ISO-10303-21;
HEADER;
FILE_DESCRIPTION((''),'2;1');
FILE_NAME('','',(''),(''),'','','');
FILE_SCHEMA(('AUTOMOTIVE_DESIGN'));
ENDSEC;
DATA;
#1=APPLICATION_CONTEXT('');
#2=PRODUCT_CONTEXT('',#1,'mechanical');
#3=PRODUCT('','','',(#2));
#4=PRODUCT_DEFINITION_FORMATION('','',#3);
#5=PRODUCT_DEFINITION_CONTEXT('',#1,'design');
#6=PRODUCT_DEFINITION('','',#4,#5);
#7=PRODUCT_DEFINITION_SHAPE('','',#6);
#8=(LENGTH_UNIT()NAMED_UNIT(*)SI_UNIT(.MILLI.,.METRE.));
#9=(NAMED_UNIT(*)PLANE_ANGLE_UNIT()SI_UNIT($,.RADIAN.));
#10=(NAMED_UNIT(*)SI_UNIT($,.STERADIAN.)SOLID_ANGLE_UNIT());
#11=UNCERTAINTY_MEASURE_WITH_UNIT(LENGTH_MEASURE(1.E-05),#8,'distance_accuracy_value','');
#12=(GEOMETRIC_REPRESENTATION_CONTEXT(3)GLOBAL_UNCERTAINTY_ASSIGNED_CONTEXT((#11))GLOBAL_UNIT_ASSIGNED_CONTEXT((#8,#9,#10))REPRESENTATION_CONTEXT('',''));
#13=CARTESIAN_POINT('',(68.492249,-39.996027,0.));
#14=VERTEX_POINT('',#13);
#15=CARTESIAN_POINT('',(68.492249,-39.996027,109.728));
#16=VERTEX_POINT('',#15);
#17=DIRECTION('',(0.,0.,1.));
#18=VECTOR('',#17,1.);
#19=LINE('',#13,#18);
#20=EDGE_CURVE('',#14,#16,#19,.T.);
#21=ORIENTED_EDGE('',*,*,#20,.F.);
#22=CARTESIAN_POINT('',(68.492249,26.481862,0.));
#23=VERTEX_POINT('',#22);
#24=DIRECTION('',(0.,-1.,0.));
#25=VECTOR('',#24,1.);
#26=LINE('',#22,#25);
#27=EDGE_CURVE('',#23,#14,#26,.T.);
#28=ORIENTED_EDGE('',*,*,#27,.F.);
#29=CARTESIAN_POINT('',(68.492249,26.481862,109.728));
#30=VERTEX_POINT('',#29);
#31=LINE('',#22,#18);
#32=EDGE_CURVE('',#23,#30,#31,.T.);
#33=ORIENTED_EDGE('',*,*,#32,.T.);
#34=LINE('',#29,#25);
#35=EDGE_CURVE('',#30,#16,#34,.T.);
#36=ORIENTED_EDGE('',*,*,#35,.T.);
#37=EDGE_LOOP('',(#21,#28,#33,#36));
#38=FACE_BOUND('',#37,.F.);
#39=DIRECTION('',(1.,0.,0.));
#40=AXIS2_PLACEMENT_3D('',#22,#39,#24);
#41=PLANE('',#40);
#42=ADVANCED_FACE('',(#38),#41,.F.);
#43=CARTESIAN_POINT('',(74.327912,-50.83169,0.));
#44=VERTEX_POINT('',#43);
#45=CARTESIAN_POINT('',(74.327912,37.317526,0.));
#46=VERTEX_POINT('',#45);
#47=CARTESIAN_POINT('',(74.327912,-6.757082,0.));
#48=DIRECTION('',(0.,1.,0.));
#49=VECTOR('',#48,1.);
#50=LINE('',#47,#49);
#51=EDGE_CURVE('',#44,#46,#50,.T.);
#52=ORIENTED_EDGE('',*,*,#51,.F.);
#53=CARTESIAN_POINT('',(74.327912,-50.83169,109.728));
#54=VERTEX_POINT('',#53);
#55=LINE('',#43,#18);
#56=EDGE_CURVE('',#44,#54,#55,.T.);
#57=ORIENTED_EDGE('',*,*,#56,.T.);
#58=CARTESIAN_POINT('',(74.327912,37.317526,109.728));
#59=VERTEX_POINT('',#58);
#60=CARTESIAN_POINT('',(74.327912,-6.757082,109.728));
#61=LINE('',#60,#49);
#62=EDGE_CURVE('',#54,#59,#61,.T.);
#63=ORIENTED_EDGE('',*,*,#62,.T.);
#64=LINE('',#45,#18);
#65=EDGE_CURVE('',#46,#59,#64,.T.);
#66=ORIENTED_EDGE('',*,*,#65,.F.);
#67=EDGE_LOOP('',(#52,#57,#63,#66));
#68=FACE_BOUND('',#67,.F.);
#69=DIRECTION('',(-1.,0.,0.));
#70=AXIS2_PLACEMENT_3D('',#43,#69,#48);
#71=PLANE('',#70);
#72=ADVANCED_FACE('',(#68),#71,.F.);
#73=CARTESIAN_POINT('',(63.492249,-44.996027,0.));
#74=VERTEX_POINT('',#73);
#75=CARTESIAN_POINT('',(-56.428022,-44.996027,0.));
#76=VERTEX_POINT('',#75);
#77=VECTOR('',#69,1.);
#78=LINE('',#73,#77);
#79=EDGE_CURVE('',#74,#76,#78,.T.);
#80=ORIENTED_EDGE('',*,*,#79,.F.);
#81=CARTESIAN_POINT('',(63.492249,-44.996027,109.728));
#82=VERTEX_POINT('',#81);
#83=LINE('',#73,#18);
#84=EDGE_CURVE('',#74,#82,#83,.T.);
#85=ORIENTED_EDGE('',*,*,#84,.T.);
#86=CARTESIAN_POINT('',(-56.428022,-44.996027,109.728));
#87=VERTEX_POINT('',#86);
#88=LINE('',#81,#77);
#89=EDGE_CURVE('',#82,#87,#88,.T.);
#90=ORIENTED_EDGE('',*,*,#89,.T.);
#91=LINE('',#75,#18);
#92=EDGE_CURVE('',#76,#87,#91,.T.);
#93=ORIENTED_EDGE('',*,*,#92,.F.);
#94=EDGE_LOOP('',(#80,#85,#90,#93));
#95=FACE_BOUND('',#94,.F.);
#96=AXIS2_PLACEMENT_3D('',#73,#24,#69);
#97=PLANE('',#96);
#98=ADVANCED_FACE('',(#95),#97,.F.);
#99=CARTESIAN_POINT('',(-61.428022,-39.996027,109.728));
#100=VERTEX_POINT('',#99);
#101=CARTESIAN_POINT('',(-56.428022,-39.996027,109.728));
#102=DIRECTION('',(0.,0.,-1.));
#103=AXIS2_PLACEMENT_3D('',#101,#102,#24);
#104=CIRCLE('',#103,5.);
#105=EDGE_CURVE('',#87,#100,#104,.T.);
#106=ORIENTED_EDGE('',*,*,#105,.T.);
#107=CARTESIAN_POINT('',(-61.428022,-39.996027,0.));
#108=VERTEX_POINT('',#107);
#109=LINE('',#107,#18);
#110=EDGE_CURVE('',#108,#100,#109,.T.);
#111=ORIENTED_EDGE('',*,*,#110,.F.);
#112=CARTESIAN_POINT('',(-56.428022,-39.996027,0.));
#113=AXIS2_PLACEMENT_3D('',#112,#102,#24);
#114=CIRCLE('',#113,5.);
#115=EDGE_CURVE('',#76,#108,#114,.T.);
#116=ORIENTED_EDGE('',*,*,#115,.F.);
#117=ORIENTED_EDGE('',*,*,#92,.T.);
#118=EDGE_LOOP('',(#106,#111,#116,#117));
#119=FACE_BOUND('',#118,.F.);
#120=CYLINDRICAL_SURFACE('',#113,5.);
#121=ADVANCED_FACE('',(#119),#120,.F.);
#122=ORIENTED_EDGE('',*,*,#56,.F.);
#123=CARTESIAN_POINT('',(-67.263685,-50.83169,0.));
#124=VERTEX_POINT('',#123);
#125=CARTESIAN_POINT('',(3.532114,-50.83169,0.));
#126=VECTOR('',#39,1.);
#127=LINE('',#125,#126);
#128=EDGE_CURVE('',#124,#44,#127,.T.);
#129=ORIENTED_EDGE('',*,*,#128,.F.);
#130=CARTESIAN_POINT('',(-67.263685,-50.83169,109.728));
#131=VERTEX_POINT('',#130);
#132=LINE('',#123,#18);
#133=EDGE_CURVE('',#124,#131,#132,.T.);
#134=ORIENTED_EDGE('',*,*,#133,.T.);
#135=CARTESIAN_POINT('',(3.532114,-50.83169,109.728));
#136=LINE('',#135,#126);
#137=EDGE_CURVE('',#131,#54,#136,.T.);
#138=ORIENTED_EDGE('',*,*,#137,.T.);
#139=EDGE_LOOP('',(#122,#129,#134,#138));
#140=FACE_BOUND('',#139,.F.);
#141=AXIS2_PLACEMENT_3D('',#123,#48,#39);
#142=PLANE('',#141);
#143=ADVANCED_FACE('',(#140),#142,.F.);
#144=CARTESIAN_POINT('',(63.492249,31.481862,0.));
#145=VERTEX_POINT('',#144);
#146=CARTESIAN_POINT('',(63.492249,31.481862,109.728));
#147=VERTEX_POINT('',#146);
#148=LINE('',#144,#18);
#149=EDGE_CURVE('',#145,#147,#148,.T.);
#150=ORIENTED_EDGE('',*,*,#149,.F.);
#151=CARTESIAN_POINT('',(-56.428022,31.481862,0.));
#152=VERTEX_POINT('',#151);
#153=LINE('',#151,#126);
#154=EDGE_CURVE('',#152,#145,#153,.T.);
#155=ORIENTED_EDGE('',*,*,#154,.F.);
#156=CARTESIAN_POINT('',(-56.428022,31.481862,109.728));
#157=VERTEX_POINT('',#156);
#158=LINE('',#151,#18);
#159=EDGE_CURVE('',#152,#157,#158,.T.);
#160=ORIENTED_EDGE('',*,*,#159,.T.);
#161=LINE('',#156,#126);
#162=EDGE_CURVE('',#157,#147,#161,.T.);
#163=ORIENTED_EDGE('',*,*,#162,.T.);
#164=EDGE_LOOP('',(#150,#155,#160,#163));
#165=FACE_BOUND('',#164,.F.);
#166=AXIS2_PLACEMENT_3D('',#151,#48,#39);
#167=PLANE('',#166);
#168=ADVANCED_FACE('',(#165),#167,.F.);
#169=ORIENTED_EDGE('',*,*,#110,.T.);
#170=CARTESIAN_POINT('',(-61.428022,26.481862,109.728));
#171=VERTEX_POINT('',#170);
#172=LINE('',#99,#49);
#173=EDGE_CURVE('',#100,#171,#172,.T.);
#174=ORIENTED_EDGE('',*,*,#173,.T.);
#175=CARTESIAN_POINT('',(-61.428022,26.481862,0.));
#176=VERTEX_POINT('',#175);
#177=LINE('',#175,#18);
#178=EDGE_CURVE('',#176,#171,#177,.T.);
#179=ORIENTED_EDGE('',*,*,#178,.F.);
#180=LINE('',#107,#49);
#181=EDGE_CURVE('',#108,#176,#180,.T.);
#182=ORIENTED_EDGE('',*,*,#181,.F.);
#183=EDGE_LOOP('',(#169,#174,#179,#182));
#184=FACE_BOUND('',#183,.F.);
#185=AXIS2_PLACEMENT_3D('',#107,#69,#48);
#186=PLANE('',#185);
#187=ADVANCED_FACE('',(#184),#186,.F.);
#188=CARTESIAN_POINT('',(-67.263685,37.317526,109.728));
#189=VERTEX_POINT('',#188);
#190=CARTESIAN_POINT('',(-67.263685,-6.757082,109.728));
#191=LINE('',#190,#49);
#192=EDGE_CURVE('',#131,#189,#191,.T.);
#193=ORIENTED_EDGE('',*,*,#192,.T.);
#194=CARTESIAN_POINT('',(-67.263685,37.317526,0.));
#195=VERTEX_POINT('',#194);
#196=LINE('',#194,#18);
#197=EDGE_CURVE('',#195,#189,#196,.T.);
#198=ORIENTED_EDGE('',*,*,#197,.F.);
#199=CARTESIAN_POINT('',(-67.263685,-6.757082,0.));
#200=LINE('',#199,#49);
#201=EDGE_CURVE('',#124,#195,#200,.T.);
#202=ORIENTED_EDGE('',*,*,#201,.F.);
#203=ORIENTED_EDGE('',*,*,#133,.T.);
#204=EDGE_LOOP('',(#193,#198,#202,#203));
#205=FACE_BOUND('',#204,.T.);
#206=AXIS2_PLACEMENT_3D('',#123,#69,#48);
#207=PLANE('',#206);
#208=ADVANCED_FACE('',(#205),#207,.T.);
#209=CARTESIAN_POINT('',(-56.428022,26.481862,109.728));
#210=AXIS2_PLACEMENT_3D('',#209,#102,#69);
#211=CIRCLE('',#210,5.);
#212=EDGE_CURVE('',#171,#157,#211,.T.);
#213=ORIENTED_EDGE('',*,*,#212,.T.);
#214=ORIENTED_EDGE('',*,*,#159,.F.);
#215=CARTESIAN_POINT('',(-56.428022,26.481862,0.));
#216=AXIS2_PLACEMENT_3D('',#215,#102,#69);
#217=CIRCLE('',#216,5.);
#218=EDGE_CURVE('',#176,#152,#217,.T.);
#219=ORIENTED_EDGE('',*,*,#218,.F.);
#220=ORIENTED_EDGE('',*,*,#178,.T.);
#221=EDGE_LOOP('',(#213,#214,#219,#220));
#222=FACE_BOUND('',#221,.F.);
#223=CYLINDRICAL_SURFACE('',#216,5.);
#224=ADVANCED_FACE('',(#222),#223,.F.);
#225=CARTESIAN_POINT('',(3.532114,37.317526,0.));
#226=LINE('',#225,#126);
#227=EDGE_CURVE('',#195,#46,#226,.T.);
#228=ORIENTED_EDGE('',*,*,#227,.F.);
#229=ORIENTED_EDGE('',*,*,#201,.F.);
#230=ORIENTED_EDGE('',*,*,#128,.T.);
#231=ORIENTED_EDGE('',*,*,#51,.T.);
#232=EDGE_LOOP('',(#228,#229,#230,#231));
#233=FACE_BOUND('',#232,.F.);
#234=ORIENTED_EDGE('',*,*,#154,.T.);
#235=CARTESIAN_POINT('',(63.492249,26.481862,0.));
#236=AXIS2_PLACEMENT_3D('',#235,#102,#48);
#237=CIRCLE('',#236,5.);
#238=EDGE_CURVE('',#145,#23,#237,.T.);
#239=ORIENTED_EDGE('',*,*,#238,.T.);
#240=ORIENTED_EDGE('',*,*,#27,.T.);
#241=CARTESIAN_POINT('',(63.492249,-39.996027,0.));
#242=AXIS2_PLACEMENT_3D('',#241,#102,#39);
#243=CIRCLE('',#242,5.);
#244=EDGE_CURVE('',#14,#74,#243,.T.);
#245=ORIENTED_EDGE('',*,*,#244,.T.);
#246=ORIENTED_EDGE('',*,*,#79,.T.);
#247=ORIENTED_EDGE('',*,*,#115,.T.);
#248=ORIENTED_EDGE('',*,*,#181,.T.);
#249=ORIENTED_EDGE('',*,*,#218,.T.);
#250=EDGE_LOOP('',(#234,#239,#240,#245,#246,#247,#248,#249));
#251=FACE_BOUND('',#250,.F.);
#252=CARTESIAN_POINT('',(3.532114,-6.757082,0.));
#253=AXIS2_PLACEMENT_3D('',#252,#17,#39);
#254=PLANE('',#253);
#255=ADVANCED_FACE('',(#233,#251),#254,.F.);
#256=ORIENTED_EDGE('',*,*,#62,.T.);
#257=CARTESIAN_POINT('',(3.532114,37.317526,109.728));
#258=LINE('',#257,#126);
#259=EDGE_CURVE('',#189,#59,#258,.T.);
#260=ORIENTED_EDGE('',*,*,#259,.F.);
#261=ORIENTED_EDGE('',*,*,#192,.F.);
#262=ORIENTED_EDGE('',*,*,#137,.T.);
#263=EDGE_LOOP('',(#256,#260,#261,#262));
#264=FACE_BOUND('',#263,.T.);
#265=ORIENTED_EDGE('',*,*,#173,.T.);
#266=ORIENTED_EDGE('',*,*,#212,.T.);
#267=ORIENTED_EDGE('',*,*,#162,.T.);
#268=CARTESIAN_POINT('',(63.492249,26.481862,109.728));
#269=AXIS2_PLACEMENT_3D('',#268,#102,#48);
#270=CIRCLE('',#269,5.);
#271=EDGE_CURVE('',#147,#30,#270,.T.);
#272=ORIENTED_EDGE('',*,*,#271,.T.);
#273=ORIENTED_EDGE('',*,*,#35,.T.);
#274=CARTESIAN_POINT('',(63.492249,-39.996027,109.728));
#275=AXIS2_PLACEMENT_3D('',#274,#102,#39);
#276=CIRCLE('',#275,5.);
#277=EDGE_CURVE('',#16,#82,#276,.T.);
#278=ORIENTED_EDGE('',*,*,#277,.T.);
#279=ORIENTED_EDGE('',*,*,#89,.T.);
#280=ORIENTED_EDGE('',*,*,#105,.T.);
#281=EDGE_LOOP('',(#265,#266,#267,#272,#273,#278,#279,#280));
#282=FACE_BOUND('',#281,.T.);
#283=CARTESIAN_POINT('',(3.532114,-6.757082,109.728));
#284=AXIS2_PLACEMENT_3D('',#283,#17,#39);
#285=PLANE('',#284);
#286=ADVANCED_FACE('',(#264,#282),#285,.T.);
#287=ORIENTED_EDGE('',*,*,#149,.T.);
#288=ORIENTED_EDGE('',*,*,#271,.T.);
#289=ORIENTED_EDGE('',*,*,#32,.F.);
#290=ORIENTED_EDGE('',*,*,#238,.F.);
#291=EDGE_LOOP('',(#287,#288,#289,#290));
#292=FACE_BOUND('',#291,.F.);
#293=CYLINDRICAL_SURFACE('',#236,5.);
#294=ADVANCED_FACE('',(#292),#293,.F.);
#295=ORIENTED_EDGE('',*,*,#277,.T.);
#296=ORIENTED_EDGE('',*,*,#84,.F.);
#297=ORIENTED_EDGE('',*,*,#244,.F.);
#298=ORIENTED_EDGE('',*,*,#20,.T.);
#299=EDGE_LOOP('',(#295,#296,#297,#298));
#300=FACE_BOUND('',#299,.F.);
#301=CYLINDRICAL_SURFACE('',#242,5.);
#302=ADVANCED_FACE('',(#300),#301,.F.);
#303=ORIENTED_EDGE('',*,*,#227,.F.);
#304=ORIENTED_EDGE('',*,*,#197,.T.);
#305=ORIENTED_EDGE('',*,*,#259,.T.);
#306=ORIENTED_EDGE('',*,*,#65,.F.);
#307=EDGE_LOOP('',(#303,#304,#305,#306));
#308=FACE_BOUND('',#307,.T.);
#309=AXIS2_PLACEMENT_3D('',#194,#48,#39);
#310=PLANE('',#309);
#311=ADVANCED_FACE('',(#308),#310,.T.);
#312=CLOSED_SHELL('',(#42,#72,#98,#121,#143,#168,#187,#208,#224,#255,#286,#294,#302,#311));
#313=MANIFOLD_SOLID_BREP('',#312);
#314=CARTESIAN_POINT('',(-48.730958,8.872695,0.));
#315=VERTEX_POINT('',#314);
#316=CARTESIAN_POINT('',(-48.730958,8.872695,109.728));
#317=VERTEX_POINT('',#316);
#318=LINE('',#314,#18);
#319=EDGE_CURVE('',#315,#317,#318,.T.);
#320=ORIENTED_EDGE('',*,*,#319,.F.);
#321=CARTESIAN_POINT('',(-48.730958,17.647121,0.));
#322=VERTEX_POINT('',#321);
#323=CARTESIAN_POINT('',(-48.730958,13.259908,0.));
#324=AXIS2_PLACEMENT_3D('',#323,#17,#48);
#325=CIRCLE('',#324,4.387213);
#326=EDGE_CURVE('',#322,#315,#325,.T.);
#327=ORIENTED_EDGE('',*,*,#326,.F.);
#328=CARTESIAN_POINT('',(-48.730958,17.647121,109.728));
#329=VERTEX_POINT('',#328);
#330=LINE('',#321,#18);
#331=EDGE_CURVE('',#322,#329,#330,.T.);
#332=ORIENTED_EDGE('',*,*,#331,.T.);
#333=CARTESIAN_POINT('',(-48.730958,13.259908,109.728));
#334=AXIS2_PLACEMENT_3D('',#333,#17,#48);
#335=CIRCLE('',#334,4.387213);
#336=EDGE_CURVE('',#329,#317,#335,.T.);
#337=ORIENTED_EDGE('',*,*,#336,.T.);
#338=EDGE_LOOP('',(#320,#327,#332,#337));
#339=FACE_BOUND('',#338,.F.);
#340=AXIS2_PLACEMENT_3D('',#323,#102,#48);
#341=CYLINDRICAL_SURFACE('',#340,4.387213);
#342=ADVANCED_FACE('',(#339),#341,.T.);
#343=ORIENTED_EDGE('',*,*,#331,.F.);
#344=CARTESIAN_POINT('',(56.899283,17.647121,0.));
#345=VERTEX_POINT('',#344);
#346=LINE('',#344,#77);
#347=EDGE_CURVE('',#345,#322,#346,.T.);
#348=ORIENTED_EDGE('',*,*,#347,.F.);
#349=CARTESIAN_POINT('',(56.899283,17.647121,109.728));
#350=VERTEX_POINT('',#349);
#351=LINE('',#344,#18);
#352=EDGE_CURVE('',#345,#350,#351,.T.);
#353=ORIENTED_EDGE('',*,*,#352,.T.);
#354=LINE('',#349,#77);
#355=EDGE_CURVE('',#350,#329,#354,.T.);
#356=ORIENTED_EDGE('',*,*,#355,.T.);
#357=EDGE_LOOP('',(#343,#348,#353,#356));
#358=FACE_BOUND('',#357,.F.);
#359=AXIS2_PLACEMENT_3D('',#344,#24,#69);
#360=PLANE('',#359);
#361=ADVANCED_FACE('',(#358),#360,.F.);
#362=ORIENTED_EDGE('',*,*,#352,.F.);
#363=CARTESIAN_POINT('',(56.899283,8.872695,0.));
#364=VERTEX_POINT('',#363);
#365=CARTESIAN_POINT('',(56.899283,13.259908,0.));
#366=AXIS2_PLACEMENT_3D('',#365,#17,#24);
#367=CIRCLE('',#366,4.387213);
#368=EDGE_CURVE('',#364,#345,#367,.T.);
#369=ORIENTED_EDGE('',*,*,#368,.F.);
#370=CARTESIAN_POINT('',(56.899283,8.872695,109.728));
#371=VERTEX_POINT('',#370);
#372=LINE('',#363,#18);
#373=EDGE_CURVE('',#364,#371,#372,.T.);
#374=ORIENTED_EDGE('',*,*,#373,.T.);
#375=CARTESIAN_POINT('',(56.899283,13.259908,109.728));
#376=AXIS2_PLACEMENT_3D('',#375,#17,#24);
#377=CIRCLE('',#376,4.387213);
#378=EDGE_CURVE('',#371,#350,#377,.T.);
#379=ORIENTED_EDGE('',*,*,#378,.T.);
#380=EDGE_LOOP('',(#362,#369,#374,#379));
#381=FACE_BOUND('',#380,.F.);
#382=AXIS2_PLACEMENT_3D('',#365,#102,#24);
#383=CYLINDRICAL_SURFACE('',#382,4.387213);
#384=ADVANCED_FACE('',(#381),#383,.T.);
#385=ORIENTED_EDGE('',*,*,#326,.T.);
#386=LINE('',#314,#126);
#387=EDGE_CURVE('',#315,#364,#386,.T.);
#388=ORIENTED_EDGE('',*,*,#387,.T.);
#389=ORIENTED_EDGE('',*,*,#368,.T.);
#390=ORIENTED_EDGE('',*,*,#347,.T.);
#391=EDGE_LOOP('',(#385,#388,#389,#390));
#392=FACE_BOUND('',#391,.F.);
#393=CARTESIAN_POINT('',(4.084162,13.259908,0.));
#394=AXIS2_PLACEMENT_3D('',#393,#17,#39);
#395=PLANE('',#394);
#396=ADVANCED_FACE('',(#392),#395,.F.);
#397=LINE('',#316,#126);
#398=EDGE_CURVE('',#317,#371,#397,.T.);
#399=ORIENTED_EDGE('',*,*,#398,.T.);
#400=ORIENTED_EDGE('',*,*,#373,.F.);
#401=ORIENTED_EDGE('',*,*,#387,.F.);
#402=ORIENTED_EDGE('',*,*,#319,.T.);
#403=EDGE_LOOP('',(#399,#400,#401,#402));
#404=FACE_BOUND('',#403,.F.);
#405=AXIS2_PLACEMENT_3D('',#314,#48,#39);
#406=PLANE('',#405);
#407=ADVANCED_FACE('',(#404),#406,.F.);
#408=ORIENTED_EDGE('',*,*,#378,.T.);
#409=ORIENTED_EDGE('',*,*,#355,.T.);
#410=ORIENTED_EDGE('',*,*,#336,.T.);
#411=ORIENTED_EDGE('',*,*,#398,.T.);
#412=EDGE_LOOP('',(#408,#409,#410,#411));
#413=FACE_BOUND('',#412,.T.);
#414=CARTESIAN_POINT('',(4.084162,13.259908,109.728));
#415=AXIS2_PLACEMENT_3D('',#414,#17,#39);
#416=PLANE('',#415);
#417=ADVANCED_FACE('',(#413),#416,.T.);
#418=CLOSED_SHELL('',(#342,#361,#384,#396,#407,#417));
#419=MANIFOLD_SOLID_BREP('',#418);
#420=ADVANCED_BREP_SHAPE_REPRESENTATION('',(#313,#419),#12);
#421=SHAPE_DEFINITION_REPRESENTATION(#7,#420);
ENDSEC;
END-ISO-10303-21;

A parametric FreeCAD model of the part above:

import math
import FreeCAD as App
import Part
import Sketcher
from FreeCAD import Vector


def add_polygon(sketch, points):
    """Adds a closed chain of lines whose ends are joined by coincident constraints."""
    first, n = sketch.GeometryCount, len(points)
    for a, b in zip(points, points[1:] + points[:1]):
        sketch.addGeometry(Part.LineSegment(App.Vector(*a, 0), App.Vector(*b, 0)), False)
    for i in range(n):
        sketch.addConstraint(Sketcher.Constraint("Coincident", first + i, 2, first + (i + 1) % n, 1))

doc = App.newDocument("Part")
body = doc.addObject("PartDesign::Body", "Body")

sketch1 = body.newObject("Sketcher::SketchObject", "Sketch")
sketch1.AttachmentSupport = (doc.getObject("XY_Plane"), [""])
sketch1.MapMode = "FlatFace"
sketch1.addGeometry(Part.LineSegment(Vector(56.9, 17.6, 0), Vector(-48.7, 17.6, 0)), False)
sketch1.addGeometry(Part.ArcOfCircle(Part.Circle(Vector(-48.7, 13.3, 0), Vector(0, 0, 1), 4.4), math.radians(90), math.radians(270)), False)
sketch1.addGeometry(Part.LineSegment(Vector(-48.7, 8.9, 0), Vector(56.9, 8.9, 0)), False)
sketch1.addGeometry(Part.ArcOfCircle(Part.Circle(Vector(56.9, 13.3, 0), Vector(0, 0, 1), 4.4), math.radians(-90), math.radians(90)), False)
sketch1.addConstraint(Sketcher.Constraint("Tangent", 0, 2, 1, 1))
sketch1.addConstraint(Sketcher.Constraint("Tangent", 1, 2, 2, 1))
sketch1.addConstraint(Sketcher.Constraint("Tangent", 2, 2, 3, 1))
sketch1.addConstraint(Sketcher.Constraint("Tangent", 3, 2, 0, 1))
sketch1.addConstraint(Sketcher.Constraint("Horizontal", 0))
sketch1.addConstraint(Sketcher.Constraint("Horizontal", 2))
sketch1.addConstraint(Sketcher.Constraint("Radius", 1, 4.387213))
sketch1.addConstraint(Sketcher.Constraint("DistanceX", 0, 2, 0, 1, 105.630241))
sketch1.addConstraint(Sketcher.Constraint("DistanceX", 1, 3, -1, 1, 48.730958))
sketch1.addConstraint(Sketcher.Constraint("DistanceY", -1, 1, 1, 3, 13.259908))
pad1 = body.newObject("PartDesign::Pad", "Pad")
pad1.Profile = sketch1
pad1.Length = 109.728
body2 = doc.addObject("PartDesign::Body", "Body001")

sketch2 = body2.newObject("Sketcher::SketchObject", "Sketch001")
sketch2.AttachmentSupport = (doc.getObject("XY_Plane001"), [""])
sketch2.MapMode = "FlatFace"
add_polygon(sketch2, [(-67, 37), (-67, -51), (74, -51), (74, 37)])
sketch2.addGeometry(Part.LineSegment(Vector(-61, -40, 0), Vector(-61, 26, 0)), False)
sketch2.addGeometry(Part.ArcOfCircle(Part.Circle(Vector(-56, 26, 0), Vector(0, 0, 1), 5), math.radians(90), math.radians(180)), False)
sketch2.addGeometry(Part.LineSegment(Vector(-56, 31, 0), Vector(63, 31, 0)), False)
sketch2.addGeometry(Part.ArcOfCircle(Part.Circle(Vector(63, 26, 0), Vector(0, 0, 1), 5), math.radians(0), math.radians(90)), False)
sketch2.addGeometry(Part.LineSegment(Vector(68, 26, 0), Vector(68, -40, 0)), False)
sketch2.addGeometry(Part.ArcOfCircle(Part.Circle(Vector(63, -40, 0), Vector(0, 0, 1), 5), math.radians(-90), math.radians(0)), False)
sketch2.addGeometry(Part.LineSegment(Vector(63, -45, 0), Vector(-56, -45, 0)), False)
sketch2.addGeometry(Part.ArcOfCircle(Part.Circle(Vector(-56, -40, 0), Vector(0, 0, 1), 5), math.radians(180), math.radians(270)), False)
sketch2.addConstraint(Sketcher.Constraint("Tangent", 4, 2, 5, 2))
sketch2.addConstraint(Sketcher.Constraint("Tangent", 5, 1, 6, 1))
sketch2.addConstraint(Sketcher.Constraint("Tangent", 6, 2, 7, 2))
sketch2.addConstraint(Sketcher.Constraint("Tangent", 7, 1, 8, 1))
sketch2.addConstraint(Sketcher.Constraint("Tangent", 8, 2, 9, 2))
sketch2.addConstraint(Sketcher.Constraint("Tangent", 9, 1, 10, 1))
sketch2.addConstraint(Sketcher.Constraint("Tangent", 10, 2, 11, 2))
sketch2.addConstraint(Sketcher.Constraint("Tangent", 11, 1, 4, 1))
sketch2.addConstraint(Sketcher.Constraint("Vertical", 0))
sketch2.addConstraint(Sketcher.Constraint("Horizontal", 1))
sketch2.addConstraint(Sketcher.Constraint("Vertical", 2))
sketch2.addConstraint(Sketcher.Constraint("Horizontal", 3))
sketch2.addConstraint(Sketcher.Constraint("Vertical", 4))
sketch2.addConstraint(Sketcher.Constraint("Horizontal", 6))
sketch2.addConstraint(Sketcher.Constraint("Vertical", 8))
sketch2.addConstraint(Sketcher.Constraint("Horizontal", 10))
sketch2.addConstraint(Sketcher.Constraint("Equal", 5, 7))
sketch2.addConstraint(Sketcher.Constraint("Equal", 7, 9))
sketch2.addConstraint(Sketcher.Constraint("Equal", 9, 11))
sketch2.addConstraint(Sketcher.Constraint("Radius", 5, 5.0))
sketch2.addConstraint(Sketcher.Constraint("DistanceX", 6, 1, 6, 2, 119.92027))
sketch2.addConstraint(Sketcher.Constraint("DistanceY", 4, 1, 4, 2, 66.477889))
sketch2.addConstraint(Sketcher.Constraint("DistanceX", 1, 1, 1, 2, 141.591597))
sketch2.addConstraint(Sketcher.Constraint("DistanceY", 0, 2, 0, 1, 88.149216))
sketch2.addConstraint(Sketcher.Constraint("DistanceX", 5, 3, -1, 1, 56.428022))
sketch2.addConstraint(Sketcher.Constraint("DistanceY", 0, 2, -1, 1, 50.83169))
sketch2.addConstraint(Sketcher.Constraint("DistanceY", -1, 1, 5, 3, 26.481862))
sketch2.addConstraint(Sketcher.Constraint("DistanceX", 0, 2, -1, 1, 67.263685))
pad2 = body2.newObject("PartDesign::Pad", "Pad001")
pad2.Profile = sketch2
pad2.Length = 109.728

doc.recompute()
